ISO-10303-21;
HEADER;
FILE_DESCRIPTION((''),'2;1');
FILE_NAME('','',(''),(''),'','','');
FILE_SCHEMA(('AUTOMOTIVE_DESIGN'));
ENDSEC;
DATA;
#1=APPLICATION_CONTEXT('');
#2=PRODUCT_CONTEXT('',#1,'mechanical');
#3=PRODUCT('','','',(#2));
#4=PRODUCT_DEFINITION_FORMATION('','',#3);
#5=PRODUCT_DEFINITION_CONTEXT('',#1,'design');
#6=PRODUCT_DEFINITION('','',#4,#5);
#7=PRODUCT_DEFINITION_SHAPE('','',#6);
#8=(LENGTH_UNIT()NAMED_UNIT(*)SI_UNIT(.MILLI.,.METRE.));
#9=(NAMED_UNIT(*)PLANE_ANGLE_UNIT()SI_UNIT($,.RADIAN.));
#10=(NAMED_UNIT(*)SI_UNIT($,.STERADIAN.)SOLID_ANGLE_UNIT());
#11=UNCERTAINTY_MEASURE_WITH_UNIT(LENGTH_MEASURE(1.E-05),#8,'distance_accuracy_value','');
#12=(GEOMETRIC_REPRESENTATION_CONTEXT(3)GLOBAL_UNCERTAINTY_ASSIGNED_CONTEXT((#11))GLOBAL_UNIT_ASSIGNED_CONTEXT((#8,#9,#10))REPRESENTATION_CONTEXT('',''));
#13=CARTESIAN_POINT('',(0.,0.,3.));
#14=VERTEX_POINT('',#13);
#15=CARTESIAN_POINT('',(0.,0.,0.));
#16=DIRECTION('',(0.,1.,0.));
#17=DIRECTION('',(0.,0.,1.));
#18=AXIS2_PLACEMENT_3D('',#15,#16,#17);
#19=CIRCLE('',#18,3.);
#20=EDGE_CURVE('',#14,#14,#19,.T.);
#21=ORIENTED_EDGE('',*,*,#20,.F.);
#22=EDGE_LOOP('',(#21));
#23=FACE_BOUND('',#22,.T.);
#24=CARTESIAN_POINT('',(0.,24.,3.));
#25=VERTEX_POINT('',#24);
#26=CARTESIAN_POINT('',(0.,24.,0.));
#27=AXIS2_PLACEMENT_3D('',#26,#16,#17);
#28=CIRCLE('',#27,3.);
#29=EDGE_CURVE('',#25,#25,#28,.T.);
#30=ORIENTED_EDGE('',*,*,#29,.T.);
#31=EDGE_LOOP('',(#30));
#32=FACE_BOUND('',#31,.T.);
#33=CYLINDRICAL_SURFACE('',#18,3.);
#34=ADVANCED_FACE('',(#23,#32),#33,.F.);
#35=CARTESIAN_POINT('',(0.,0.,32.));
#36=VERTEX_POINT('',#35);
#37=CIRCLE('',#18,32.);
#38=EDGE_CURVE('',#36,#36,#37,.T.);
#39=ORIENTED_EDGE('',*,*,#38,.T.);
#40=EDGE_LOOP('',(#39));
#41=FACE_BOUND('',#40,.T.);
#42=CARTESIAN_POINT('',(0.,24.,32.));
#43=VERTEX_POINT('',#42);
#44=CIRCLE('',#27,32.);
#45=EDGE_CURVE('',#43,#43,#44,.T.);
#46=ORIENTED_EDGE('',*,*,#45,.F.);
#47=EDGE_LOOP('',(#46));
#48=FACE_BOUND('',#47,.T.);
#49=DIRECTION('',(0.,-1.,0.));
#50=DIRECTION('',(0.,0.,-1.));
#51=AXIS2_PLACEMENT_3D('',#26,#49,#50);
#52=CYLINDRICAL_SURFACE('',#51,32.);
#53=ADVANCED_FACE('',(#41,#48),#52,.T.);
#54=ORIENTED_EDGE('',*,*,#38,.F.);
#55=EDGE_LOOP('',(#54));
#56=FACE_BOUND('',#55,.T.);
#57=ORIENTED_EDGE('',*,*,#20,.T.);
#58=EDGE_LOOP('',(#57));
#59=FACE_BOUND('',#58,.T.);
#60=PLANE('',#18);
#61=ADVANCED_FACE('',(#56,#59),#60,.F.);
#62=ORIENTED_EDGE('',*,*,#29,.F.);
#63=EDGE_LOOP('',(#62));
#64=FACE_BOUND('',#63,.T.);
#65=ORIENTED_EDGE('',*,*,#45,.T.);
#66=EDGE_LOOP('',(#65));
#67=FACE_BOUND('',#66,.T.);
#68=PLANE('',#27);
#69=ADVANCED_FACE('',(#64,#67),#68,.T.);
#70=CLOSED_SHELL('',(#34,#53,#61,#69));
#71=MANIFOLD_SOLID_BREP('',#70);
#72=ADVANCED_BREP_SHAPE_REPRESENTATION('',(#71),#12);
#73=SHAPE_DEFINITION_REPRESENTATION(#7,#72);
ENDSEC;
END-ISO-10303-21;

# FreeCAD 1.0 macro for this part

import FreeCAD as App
import Part
import Sketcher
from FreeCAD import Vector

doc = App.newDocument("Part")
body = doc.addObject("PartDesign::Body", "Body")

# Sketch on XZ plane
sketch1 = body.newObject("Sketcher::SketchObject", "Sketch")
sketch1.AttachmentSupport = (doc.getObject("XZ_Plane"), [""])
sketch1.MapMode = "FlatFace"
sketch1.addGeometry(Part.Circle(Vector(0, 0, 0), Vector(0, 0, 1), 32), False)
sketch1.addConstraint(Sketcher.Constraint("Coincident", 0, 3, -1, 1))
sketch1.addConstraint(Sketcher.Constraint("Diameter", 0, 64.0))
pad1 = body.newObject("PartDesign::Pad", "Pad")
pad1.Profile = sketch1
pad1.Length = 24
pad1.Reversed = True

# Sketch on XZ plane
sketch2 = body.newObject("Sketcher::SketchObject", "Sketch001")
sketch2.AttachmentSupport = (doc.getObject("XZ_Plane"), [""])
sketch2.MapMode = "FlatFace"
sketch2.AttachmentOffset = App.Placement(Vector(0, 0, -24), App.Rotation())
sketch2.addGeometry(Part.Circle(Vector(0, 0, 0), Vector(0, 0, 1), 3), False)
sketch2.addConstraint(Sketcher.Constraint("Coincident", 0, 3, -1, 1))
sketch2.addConstraint(Sketcher.Constraint("Diameter", 0, 6.0))
pocket1 = body.newObject("PartDesign::Pocket", "Pocket")
pocket1.Profile = sketch2
pocket1.Length = 24
pocket1.Reversed = True

doc.recompute()
